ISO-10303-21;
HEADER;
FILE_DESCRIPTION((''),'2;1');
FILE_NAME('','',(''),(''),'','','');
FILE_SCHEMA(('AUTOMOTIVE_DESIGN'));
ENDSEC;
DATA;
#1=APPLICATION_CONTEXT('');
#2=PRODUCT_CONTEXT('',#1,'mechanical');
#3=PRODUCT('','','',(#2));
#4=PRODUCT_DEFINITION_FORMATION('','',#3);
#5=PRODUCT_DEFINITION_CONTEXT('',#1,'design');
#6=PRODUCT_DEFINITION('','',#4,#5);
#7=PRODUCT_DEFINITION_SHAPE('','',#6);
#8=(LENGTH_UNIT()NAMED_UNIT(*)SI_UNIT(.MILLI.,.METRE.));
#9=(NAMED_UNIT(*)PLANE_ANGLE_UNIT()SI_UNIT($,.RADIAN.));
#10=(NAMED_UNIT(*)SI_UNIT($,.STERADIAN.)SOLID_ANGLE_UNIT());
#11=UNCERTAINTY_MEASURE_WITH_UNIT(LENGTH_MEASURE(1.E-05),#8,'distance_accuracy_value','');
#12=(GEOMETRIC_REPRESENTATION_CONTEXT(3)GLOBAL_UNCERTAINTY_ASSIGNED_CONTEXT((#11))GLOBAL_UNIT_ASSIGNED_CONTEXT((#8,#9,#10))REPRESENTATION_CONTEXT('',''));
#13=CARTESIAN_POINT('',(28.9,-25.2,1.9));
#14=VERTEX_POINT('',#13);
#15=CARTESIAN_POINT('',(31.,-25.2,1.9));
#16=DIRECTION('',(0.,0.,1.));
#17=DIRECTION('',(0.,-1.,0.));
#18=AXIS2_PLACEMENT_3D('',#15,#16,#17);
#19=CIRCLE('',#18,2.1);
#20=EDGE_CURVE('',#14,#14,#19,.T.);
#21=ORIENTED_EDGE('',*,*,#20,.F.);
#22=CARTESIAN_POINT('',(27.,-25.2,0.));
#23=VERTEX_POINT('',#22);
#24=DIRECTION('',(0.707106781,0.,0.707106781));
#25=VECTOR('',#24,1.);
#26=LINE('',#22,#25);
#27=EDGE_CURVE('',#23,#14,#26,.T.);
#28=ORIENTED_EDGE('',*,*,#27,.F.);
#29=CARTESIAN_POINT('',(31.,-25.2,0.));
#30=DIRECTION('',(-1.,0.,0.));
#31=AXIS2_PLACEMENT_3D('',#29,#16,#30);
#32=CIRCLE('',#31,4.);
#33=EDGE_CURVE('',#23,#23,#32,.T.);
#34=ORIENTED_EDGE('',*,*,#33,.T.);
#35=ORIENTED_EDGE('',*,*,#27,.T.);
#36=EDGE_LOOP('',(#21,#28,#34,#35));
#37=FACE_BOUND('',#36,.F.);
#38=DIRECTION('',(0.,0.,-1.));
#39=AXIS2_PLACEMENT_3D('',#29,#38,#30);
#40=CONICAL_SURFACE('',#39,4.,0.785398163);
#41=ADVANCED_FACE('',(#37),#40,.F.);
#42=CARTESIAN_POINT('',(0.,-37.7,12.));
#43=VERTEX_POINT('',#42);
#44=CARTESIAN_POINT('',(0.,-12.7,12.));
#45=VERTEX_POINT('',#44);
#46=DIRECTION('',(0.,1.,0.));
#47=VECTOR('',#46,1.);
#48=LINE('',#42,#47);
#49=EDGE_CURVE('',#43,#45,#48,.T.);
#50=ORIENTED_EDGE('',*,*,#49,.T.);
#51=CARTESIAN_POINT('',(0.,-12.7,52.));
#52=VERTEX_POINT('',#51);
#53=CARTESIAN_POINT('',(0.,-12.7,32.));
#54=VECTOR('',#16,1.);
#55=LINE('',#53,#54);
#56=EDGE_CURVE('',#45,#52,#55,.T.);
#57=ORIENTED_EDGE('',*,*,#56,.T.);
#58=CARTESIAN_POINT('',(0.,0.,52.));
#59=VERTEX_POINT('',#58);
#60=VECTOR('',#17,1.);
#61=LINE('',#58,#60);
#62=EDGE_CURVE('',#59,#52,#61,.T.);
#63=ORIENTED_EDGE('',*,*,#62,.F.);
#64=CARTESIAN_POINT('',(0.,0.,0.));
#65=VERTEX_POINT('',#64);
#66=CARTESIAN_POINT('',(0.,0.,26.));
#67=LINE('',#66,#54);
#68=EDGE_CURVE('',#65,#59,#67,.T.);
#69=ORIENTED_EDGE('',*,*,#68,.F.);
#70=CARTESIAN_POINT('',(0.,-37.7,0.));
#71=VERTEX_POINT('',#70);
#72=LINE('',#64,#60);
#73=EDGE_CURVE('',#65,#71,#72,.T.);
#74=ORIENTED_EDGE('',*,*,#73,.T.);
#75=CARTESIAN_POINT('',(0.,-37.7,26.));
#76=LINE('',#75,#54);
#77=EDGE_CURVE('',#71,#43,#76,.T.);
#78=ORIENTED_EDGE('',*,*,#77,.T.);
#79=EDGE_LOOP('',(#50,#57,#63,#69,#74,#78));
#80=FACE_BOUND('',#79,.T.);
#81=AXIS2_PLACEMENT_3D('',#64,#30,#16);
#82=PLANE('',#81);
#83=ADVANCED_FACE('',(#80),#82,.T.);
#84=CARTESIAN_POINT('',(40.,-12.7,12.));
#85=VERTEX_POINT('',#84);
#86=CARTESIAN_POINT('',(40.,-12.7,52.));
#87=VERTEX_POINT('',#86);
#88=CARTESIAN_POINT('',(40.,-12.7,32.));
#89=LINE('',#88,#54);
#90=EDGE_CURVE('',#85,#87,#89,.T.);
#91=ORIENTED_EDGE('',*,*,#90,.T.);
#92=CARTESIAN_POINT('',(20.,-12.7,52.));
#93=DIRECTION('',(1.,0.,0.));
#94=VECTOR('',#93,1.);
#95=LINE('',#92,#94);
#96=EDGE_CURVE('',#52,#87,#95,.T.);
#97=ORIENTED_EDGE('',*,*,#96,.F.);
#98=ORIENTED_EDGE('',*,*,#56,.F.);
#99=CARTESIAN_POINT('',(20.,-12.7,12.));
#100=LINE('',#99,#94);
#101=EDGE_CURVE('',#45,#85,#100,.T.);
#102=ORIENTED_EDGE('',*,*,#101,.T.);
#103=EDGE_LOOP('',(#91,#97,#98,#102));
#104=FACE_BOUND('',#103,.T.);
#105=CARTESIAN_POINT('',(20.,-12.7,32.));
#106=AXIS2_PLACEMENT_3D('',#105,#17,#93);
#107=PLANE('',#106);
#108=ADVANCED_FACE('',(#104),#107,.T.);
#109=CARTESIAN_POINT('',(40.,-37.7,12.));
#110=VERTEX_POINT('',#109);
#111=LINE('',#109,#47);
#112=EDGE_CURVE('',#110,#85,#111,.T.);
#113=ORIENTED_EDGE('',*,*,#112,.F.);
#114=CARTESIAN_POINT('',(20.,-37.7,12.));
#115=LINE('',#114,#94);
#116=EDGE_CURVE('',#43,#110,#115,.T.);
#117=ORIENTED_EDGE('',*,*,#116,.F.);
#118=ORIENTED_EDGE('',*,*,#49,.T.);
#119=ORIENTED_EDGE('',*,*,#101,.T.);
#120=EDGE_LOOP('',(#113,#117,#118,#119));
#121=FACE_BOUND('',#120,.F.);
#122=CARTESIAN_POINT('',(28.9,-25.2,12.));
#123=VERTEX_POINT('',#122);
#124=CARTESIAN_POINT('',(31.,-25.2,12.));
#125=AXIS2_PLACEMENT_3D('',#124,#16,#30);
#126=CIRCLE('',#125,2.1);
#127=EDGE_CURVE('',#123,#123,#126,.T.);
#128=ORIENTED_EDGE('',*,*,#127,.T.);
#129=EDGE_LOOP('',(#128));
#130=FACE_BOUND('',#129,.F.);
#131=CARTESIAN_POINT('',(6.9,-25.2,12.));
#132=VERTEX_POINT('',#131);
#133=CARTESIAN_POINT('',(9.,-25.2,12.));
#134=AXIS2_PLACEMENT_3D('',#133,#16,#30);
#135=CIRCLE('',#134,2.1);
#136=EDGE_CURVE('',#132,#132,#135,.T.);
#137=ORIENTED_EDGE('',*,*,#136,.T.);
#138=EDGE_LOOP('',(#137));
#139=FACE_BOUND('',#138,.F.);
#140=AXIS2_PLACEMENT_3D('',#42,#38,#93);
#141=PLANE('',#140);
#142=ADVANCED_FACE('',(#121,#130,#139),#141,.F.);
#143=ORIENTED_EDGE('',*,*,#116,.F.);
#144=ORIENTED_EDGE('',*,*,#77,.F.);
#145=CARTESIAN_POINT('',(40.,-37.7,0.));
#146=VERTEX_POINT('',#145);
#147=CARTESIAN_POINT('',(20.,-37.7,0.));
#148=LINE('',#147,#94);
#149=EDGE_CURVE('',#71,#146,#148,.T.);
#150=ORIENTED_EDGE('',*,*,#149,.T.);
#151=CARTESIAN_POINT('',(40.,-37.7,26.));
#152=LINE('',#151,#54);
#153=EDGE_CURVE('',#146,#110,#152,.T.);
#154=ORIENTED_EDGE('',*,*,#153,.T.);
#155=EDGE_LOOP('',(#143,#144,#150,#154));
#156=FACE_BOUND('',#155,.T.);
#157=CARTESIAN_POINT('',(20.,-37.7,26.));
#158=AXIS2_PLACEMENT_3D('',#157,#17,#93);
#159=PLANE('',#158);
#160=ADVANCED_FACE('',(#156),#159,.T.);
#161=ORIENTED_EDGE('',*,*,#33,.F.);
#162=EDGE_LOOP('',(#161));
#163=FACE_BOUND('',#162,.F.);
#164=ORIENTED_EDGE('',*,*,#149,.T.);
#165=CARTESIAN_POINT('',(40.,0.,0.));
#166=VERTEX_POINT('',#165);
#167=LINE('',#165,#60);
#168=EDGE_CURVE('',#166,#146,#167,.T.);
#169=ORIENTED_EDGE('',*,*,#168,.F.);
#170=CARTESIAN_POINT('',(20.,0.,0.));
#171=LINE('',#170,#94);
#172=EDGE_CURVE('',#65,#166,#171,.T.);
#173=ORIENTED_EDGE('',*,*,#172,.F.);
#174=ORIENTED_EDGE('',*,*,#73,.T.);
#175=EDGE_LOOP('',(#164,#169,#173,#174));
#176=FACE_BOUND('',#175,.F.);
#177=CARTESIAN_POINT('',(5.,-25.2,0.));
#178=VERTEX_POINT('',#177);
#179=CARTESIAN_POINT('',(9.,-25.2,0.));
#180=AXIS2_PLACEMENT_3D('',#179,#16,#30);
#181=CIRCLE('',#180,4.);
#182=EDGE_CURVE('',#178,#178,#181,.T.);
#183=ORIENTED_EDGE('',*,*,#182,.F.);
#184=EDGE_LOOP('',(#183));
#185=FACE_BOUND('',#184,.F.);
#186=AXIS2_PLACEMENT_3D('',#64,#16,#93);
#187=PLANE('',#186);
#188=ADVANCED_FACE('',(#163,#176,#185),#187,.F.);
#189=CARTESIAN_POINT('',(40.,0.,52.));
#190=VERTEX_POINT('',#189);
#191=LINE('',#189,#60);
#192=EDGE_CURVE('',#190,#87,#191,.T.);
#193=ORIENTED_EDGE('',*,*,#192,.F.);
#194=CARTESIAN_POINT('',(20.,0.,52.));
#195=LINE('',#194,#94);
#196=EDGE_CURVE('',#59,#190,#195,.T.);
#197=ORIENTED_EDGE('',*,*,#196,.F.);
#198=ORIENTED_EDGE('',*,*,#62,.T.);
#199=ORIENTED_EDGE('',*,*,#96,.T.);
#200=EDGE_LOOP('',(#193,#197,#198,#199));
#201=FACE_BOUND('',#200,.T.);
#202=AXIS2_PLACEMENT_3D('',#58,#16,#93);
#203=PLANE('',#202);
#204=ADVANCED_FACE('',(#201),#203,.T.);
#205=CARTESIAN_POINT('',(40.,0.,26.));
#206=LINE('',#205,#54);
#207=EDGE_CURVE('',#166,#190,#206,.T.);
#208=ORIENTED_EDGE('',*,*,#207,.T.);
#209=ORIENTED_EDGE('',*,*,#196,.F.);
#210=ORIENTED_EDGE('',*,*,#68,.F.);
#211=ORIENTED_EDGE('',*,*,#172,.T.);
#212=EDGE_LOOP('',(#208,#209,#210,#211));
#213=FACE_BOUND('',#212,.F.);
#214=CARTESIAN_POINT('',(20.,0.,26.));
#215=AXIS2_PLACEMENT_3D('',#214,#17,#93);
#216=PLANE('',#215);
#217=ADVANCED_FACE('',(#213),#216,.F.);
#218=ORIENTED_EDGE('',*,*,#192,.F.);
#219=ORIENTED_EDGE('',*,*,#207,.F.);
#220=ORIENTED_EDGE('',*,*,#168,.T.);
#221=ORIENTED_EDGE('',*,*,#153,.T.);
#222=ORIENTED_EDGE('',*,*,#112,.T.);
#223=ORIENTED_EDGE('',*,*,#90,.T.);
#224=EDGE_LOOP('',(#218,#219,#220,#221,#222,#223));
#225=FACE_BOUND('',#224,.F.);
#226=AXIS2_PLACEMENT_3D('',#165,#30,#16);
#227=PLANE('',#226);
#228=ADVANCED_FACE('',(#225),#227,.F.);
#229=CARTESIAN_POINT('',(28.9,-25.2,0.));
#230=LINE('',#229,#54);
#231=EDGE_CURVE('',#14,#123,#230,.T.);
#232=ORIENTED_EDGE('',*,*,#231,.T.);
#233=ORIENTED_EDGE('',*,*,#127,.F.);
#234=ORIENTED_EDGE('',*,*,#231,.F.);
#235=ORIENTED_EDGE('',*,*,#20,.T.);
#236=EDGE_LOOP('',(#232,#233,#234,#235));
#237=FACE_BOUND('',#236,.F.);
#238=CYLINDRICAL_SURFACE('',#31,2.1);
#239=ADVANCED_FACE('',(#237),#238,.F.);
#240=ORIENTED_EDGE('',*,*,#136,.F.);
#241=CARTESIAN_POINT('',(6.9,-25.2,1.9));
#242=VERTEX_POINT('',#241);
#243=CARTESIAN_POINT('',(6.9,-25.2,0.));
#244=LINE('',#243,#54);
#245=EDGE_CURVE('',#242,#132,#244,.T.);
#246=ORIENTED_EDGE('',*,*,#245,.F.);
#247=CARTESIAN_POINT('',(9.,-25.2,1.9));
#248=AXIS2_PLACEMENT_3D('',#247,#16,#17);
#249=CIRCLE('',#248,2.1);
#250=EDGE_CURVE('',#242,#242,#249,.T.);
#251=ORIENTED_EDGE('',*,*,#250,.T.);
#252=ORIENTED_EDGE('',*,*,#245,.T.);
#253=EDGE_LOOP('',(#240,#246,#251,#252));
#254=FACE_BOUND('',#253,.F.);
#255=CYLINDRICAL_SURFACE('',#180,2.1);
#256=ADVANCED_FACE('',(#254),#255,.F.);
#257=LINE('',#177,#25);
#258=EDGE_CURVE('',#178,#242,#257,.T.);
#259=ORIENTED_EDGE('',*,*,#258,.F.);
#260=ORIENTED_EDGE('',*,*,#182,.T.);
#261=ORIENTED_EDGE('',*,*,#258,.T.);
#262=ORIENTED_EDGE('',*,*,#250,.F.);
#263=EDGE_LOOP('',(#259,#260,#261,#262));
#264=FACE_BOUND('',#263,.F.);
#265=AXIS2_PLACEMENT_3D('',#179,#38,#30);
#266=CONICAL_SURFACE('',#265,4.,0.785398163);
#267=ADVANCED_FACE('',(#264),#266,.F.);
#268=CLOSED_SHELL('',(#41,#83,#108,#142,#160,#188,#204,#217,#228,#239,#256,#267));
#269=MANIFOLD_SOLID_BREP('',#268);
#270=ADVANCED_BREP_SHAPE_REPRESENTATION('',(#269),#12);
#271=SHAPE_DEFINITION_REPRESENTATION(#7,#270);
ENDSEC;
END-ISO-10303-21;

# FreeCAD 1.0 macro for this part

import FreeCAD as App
import Part
import Sketcher

V = App.Vector
Q = App.Units.Quantity

doc = App.newDocument("Part")
body = doc.addObject("PartDesign::Body", "Body")

# Sketch on XZ plane
sketch1 = doc.addObject("Sketcher::SketchObject", "Sketch")
body.addObject(sketch1)
sketch1.AttachmentSupport = (doc.XZ_Plane, [""])
sketch1.MapMode = "FlatFace"
sketch1.addGeometry(Part.LineSegment(V(0, 52, 0), V(0, 0, 0)), False)
sketch1.addGeometry(Part.LineSegment(V(0, 0, 0), V(40, 0, 0)), False)
sketch1.addGeometry(Part.LineSegment(V(40, 0, 0), V(40, 52, 0)), False)
sketch1.addGeometry(Part.LineSegment(V(40, 52, 0), V(0, 52, 0)), False)
sketch1.addConstraint(Sketcher.Constraint("Coincident", 0, 2, 1, 1))
sketch1.addConstraint(Sketcher.Constraint("Coincident", 1, 2, 2, 1))
sketch1.addConstraint(Sketcher.Constraint("Coincident", 2, 2, 3, 1))
sketch1.addConstraint(Sketcher.Constraint("Coincident", 3, 2, 0, 1))
sketch1.addConstraint(Sketcher.Constraint("Vertical", 0))
sketch1.addConstraint(Sketcher.Constraint("Horizontal", 1))
sketch1.addConstraint(Sketcher.Constraint("Vertical", 2))
sketch1.addConstraint(Sketcher.Constraint("Horizontal", 3))
sketch1.addConstraint(Sketcher.Constraint("Coincident", 0, 2, -1, 1))
sketch1.addConstraint(Sketcher.Constraint("DistanceX", 1, 1, 1, 2, Q("40 mm")))
sketch1.addConstraint(Sketcher.Constraint("DistanceY", 0, 2, 0, 1, Q("52 mm")))
pad1 = doc.addObject("PartDesign::Pad", "Pad")
body.addObject(pad1)
pad1.Profile = sketch1
pad1.Length = 37.7

# Sketch on XZ plane
sketch2 = doc.addObject("Sketcher::SketchObject", "Sketch001")
body.addObject(sketch2)
sketch2.AttachmentSupport = (doc.XZ_Plane, [""])
sketch2.MapMode = "FlatFace"
sketch2.AttachmentOffset = App.Placement(V(0, 0, 37.7), App.Rotation())
sketch2.addGeometry(Part.LineSegment(V(0, 52, 0), V(0, 12, 0)), False)
sketch2.addGeometry(Part.LineSegment(V(0, 12, 0), V(40, 12, 0)), False)
sketch2.addGeometry(Part.LineSegment(V(40, 12, 0), V(40, 52, 0)), False)
sketch2.addGeometry(Part.LineSegment(V(40, 52, 0), V(0, 52, 0)), False)
sketch2.addConstraint(Sketcher.Constraint("Coincident", 0, 2, 1, 1))
sketch2.addConstraint(Sketcher.Constraint("Coincident", 1, 2, 2, 1))
sketch2.addConstraint(Sketcher.Constraint("Coincident", 2, 2, 3, 1))
sketch2.addConstraint(Sketcher.Constraint("Coincident", 3, 2, 0, 1))
sketch2.addConstraint(Sketcher.Constraint("Vertical", 0))
sketch2.addConstraint(Sketcher.Constraint("Horizontal", 1))
sketch2.addConstraint(Sketcher.Constraint("Vertical", 2))
sketch2.addConstraint(Sketcher.Constraint("Horizontal", 3))
sketch2.addConstraint(Sketcher.Constraint("PointOnObject", 0, 2, -2))
sketch2.addConstraint(Sketcher.Constraint("Equal", 3, 0))
sketch2.addConstraint(Sketcher.Constraint("DistanceX", 1, 1, 1, 2, Q("40 mm")))
sketch2.addConstraint(Sketcher.Constraint("DistanceY", -1, 1, 0, 2, Q("12 mm")))
pocket1 = doc.addObject("PartDesign::Pocket", "Pocket")
body.addObject(pocket1)
pocket1.Profile = sketch2
pocket1.Length = 25

# Sketch on XY plane
sketch3 = doc.addObject("Sketcher::SketchObject", "Sketch002")
body.addObject(sketch3)
sketch3.AttachmentSupport = (doc.XY_Plane, [""])
sketch3.MapMode = "FlatFace"
sketch3.addGeometry(Part.Circle(V(9, -25.2, 0), V(0, 0, 1), 2.1), False)
sketch3.addGeometry(Part.Circle(V(31, -25.2, 0), V(0, 0, 1), 2.1), False)
sketch3.addConstraint(Sketcher.Constraint("Equal", 0, 1))
sketch3.addConstraint(Sketcher.Constraint("Horizontal", 0, 3, 1, 3))
sketch3.addConstraint(Sketcher.Constraint("Diameter", 0, Q("4.2 mm")))
sketch3.addConstraint(Sketcher.Constraint("DistanceX", -1, 1, 0, 3, Q("9 mm")))
sketch3.addConstraint(Sketcher.Constraint("DistanceX", -1, 1, 1, 3, Q("31 mm")))
sketch3.addConstraint(Sketcher.Constraint("DistanceY", 0, 3, -1, 1, Q("25.2 mm")))
doc.recompute()
hole = doc.addObject("PartDesign::Hole", "Hole")
body.addObject(hole)
hole.Profile = sketch3
hole.ThreadType = "None"
hole.Diameter = 4.2
hole.DepthType = "ThroughAll"
hole.HoleCutType = "Countersink"
hole.HoleCutDiameter = 8
hole.HoleCutCountersinkAngle = 90
hole.Reversed = True

doc.recompute()
